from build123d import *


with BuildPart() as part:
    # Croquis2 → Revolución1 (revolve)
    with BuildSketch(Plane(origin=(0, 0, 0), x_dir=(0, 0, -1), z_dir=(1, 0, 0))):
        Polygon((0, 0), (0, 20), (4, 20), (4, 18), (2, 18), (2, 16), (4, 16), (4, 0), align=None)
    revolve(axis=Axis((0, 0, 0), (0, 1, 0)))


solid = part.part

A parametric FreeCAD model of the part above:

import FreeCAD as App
import Part
import Sketcher
from FreeCAD import Vector

doc = App.newDocument("Part")
body = doc.addObject("PartDesign::Body", "Body")

sketch1 = doc.addObject("Sketcher::SketchObject", "Sketch")
body.addObject(sketch1)
sketch1.AttachmentSupport = (doc.YZ_Plane, [""])
sketch1.MapMode = "FlatFace"
sketch1.addGeometry(Part.LineSegment(Vector(20, 0, 0), Vector(0, 0, 0)), False)
sketch1.addGeometry(Part.LineSegment(Vector(0, 0, 0), Vector(0, -4, 0)), False)
sketch1.addGeometry(Part.LineSegment(Vector(0, -4, 0), Vector(16, -4, 0)), False)
sketch1.addGeometry(Part.LineSegment(Vector(16, -4, 0), Vector(16, -2, 0)), False)
sketch1.addGeometry(Part.LineSegment(Vector(16, -2, 0), Vector(18, -2, 0)), False)
sketch1.addGeometry(Part.LineSegment(Vector(18, -2, 0), Vector(18, -4, 0)), False)
sketch1.addGeometry(Part.LineSegment(Vector(18, -4, 0), Vector(20, -4, 0)), False)
sketch1.addGeometry(Part.LineSegment(Vector(20, -4, 0), Vector(20, 0, 0)), False)
sketch1.addConstraint(Sketcher.Constraint("Coincident", 0, 2, 1, 1))
sketch1.addConstraint(Sketcher.Constraint("Coincident", 1, 2, 2, 1))
sketch1.addConstraint(Sketcher.Constraint("Coincident", 2, 2, 3, 1))
sketch1.addConstraint(Sketcher.Constraint("Coincident", 3, 2, 4, 1))
sketch1.addConstraint(Sketcher.Constraint("Coincident", 4, 2, 5, 1))
sketch1.addConstraint(Sketcher.Constraint("Coincident", 5, 2, 6, 1))
sketch1.addConstraint(Sketcher.Constraint("Coincident", 6, 2, 7, 1))
sketch1.addConstraint(Sketcher.Constraint("Coincident", 7, 2, 0, 1))
sketch1.addConstraint(Sketcher.Constraint("Horizontal", 0))
sketch1.addConstraint(Sketcher.Constraint("Vertical", 1))
sketch1.addConstraint(Sketcher.Constraint("Horizontal", 2))
sketch1.addConstraint(Sketcher.Constraint("Vertical", 3))
sketch1.addConstraint(Sketcher.Constraint("Horizontal", 4))
sketch1.addConstraint(Sketcher.Constraint("Vertical", 5))
sketch1.addConstraint(Sketcher.Constraint("Horizontal", 6))
sketch1.addConstraint(Sketcher.Constraint("Vertical", 7))
sketch1.addConstraint(Sketcher.Constraint("Coincident", 0, 2, -1, 1))
sketch1.addConstraint(Sketcher.Constraint("Horizontal", 2, 2, 5, 2))
sketch1.addConstraint(Sketcher.Constraint("Equal", 4, 6))
sketch1.addConstraint(Sketcher.Constraint("Equal", 6, 3))
sketch1.addConstraint(Sketcher.Constraint("DistanceX", 0, 2, 0, 1, 20.0))
sketch1.addConstraint(Sketcher.Constraint("DistanceX", 2, 1, 2, 2, 16.0))
sketch1.addConstraint(Sketcher.Constraint("DistanceY", 1, 2, 1, 1, 4.0))
revolution = doc.addObject("PartDesign::Revolution", "Revolution")
body.addObject(revolution)
revolution.Profile = sketch1
revolution.ReferenceAxis = (sketch1, ["H_Axis"])
revolution.Angle = 360

doc.recompute()
